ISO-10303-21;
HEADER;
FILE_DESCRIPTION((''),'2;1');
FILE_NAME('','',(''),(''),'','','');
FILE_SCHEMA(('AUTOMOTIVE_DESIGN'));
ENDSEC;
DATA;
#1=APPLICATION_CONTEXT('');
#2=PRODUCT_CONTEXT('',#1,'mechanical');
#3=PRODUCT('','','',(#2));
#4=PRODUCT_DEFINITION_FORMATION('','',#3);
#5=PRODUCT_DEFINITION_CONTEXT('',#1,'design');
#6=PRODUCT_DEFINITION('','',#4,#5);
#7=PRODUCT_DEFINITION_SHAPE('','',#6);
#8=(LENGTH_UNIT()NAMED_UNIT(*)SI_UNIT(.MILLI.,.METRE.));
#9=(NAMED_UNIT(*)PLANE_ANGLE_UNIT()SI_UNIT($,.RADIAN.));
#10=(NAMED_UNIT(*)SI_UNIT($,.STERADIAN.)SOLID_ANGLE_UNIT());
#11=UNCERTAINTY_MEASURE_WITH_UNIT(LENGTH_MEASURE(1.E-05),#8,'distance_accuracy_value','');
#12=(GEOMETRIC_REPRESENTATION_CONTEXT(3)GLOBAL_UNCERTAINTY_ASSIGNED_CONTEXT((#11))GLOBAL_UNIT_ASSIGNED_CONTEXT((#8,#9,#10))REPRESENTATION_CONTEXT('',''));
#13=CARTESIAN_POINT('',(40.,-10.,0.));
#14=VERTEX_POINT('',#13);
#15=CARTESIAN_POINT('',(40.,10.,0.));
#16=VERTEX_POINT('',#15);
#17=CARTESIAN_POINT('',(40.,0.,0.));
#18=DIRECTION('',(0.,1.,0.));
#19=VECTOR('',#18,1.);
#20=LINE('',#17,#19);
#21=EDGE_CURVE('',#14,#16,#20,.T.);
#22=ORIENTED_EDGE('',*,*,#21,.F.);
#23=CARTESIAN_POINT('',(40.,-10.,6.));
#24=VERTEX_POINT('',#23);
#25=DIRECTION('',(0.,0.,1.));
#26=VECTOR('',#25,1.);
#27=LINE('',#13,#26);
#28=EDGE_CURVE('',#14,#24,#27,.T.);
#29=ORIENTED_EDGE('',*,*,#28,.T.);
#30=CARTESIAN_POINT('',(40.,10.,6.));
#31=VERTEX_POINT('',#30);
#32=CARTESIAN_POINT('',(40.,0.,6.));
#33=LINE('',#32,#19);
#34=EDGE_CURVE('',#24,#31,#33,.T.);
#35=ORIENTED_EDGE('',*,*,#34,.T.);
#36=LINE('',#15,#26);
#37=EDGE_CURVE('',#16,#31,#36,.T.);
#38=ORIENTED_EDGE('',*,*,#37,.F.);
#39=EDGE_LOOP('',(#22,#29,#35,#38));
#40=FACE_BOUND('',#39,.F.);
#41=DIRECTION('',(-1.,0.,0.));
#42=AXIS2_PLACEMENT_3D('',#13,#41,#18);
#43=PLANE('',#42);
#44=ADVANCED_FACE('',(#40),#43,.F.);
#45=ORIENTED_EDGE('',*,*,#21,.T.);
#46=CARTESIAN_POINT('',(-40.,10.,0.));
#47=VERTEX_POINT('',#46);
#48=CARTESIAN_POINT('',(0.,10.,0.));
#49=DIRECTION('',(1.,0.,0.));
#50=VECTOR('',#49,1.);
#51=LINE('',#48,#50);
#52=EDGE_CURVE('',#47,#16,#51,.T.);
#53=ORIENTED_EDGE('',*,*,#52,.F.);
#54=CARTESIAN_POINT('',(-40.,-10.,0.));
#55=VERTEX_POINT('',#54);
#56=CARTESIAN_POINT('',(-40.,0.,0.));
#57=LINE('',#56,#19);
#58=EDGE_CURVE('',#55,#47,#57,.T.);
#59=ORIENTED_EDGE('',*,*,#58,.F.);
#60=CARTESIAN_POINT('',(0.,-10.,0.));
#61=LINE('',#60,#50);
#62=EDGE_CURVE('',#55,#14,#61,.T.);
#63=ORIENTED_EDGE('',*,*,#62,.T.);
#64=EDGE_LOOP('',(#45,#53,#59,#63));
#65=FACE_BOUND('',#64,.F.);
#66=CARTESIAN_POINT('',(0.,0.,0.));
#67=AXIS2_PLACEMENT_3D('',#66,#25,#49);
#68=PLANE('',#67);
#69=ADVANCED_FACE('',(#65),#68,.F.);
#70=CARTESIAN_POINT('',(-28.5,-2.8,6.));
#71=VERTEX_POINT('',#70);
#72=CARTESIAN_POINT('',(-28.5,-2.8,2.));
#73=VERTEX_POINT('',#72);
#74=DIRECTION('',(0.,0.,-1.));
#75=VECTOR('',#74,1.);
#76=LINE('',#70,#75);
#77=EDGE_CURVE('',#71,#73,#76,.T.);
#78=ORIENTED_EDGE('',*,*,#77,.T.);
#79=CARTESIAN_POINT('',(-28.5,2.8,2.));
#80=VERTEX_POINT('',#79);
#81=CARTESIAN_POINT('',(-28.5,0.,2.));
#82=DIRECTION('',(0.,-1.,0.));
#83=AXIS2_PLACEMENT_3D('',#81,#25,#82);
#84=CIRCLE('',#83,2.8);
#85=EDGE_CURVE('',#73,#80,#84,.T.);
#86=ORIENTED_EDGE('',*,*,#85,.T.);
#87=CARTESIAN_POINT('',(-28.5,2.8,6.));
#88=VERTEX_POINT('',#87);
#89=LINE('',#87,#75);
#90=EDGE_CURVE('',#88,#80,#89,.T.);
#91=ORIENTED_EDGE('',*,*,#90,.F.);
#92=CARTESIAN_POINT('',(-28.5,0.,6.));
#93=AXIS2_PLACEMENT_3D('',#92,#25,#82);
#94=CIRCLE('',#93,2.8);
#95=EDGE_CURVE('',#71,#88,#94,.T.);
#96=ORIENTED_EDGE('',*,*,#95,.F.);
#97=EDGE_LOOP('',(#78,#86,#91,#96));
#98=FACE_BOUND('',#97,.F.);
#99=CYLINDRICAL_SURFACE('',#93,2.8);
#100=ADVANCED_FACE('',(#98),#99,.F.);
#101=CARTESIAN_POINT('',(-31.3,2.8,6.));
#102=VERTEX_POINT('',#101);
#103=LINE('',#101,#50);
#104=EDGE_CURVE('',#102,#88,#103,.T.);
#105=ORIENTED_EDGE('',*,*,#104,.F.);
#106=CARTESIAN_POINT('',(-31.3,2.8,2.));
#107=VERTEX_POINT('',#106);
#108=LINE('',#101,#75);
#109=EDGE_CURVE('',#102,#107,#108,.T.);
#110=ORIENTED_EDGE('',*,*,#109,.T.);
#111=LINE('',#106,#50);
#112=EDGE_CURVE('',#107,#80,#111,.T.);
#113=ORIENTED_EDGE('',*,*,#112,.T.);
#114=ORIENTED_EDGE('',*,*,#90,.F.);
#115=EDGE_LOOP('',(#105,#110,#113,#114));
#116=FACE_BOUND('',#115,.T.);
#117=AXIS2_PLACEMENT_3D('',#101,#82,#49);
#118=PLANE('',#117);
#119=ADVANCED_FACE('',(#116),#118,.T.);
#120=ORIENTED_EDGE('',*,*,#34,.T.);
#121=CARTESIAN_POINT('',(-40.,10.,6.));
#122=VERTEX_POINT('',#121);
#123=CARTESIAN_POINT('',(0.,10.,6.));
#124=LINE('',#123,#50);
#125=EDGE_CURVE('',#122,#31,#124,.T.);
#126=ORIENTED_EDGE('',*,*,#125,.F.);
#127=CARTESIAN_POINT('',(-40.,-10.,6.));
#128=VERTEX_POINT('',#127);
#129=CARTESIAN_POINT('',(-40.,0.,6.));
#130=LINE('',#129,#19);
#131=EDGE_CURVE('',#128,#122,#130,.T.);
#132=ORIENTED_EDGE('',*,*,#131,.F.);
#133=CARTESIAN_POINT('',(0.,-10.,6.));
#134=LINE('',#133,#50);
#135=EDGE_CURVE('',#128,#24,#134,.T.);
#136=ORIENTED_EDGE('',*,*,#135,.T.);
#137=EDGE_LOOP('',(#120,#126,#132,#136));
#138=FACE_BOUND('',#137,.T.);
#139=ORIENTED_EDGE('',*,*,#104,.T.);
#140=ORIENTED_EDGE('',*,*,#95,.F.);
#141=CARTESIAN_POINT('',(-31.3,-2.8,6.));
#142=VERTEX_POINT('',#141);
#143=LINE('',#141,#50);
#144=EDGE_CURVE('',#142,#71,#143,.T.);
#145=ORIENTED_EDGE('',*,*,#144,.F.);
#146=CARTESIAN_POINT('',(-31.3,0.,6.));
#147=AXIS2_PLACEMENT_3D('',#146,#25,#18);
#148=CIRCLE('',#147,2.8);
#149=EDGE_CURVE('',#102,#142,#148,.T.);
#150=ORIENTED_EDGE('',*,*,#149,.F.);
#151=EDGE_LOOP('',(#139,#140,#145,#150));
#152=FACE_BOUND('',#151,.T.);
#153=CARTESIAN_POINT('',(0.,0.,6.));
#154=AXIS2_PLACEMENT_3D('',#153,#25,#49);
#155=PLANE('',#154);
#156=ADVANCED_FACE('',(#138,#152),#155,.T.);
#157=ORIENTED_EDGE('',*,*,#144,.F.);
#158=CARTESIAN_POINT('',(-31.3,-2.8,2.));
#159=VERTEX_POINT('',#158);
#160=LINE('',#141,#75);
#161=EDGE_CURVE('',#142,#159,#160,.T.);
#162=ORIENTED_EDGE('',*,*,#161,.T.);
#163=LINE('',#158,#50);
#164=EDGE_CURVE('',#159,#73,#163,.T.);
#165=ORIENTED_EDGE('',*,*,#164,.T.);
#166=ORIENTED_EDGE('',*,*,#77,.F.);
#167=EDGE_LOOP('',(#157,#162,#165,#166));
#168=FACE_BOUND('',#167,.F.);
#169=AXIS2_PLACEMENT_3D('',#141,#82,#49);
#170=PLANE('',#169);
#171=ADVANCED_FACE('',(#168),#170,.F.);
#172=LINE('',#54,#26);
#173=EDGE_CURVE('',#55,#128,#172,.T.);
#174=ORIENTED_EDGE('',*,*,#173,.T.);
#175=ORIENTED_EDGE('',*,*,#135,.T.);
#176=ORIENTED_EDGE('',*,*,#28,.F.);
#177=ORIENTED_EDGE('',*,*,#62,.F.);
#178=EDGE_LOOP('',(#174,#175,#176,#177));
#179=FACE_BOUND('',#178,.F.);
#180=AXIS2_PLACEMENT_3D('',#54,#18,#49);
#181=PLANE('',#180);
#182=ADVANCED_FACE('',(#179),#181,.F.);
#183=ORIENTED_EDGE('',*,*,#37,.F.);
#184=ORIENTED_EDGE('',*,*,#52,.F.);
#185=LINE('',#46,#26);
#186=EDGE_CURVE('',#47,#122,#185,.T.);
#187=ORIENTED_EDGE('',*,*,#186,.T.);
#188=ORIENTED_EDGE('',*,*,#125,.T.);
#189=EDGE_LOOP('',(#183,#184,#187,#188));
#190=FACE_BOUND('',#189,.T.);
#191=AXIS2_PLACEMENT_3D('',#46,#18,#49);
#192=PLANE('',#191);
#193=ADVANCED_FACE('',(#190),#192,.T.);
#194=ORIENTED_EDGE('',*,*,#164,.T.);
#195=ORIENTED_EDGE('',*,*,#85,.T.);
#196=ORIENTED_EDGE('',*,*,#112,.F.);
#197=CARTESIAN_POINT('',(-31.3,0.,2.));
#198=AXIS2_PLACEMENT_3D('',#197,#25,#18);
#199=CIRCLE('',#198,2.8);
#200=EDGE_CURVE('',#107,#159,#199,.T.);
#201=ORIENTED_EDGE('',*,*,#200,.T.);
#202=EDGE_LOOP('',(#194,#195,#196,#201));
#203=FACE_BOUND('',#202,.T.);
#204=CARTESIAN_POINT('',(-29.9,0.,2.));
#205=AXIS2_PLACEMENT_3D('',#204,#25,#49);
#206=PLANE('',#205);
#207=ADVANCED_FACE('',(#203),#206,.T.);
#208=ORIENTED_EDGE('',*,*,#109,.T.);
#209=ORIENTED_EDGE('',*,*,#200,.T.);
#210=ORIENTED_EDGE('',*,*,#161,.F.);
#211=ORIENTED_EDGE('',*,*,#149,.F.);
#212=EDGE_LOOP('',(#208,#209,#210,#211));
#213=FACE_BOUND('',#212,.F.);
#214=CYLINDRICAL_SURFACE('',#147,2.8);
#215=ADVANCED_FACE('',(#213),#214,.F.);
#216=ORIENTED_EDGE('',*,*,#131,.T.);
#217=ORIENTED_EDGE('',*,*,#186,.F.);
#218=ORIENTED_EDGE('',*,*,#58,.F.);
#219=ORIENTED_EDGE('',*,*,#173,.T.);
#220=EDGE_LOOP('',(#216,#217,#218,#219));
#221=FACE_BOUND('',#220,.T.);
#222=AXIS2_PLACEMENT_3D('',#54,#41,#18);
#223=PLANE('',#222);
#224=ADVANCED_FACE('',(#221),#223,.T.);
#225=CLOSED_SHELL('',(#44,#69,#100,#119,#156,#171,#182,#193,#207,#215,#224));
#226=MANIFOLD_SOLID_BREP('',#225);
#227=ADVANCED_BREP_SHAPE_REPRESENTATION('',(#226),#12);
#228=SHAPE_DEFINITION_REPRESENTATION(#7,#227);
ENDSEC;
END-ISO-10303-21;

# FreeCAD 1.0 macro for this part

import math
import FreeCAD as App
import Part
import Sketcher

doc = App.newDocument("Part")
params = doc.addObject("Spreadsheet::Sheet", "Params")
for row, (alias, value) in enumerate([
    ("sketch1_width", "80 mm"),
    ("sketch1_height", "20 mm"),
    ("pad1_length", "6 mm"),
    ("sketch2_radius", "2.8 mm"),
    ("sketch2_width", "2.8 mm"),
    ("pocket1_length", "4 mm"),
], start=1):
    params.set(f"A{row}", alias)
    params.set(f"B{row}", "=" + value)
    params.setAlias(f"B{row}", alias)

body = doc.addObject("PartDesign::Body", "Body")

sketch1 = body.newObject("Sketcher::SketchObject", "Sketch")
sketch1.AttachmentSupport = (doc.getObject("XY_Plane"), [""])
sketch1.MapMode = "FlatFace"
sketch1.addGeometry([
    Part.LineSegment(App.Vector(-40, 10, 0), App.Vector(-40, -10, 0)),
    Part.LineSegment(App.Vector(-40, -10, 0), App.Vector(40, -10, 0)),
    Part.LineSegment(App.Vector(40, -10, 0), App.Vector(40, 10, 0)),
    Part.LineSegment(App.Vector(40, 10, 0), App.Vector(-40, 10, 0)),
], False)
sketch1.addConstraint([
    Sketcher.Constraint("Coincident", 0, 2, 1, 1),
    Sketcher.Constraint("Coincident", 1, 2, 2, 1),
    Sketcher.Constraint("Coincident", 2, 2, 3, 1),
    Sketcher.Constraint("Coincident", 3, 2, 0, 1),
    Sketcher.Constraint("Vertical", 0),
    Sketcher.Constraint("Horizontal", 1),
    Sketcher.Constraint("Vertical", 2),
    Sketcher.Constraint("Horizontal", 3),
    Sketcher.Constraint("Symmetric", 0, 2, 2, 2, -1, 1),
    Sketcher.Constraint("DistanceX", 1, 1, 1, 2, 80.0),
    Sketcher.Constraint("DistanceY", 0, 2, 0, 1, 20.0),
])
sketch1.setExpression("Constraints[9]", "Params.sketch1_width")
sketch1.setExpression("Constraints[10]", "Params.sketch1_height")
pad1 = body.newObject("PartDesign::Pad", "Pad")
pad1.Profile = sketch1
pad1.setExpression("Length", "Params.pad1_length")

sketch2 = body.newObject("Sketcher::SketchObject", "Sketch001")
sketch2.AttachmentSupport = (doc.getObject("XY_Plane"), [""])
sketch2.MapMode = "FlatFace"
sketch2.AttachmentOffset = App.Placement(App.Vector(0, 0, 6), App.Rotation())
sketch2.addGeometry([
    Part.ArcOfCircle(Part.Circle(App.Vector(-31.3, 0, 0), App.Vector(0, 0, 1), 2.8), math.radians(90), math.radians(270)),
    Part.LineSegment(App.Vector(-31.3, -2.8, 0), App.Vector(-28.5, -2.8, 0)),
    Part.ArcOfCircle(Part.Circle(App.Vector(-28.5, 0, 0), App.Vector(0, 0, 1), 2.8), math.radians(-90), math.radians(90)),
    Part.LineSegment(App.Vector(-28.5, 2.8, 0), App.Vector(-31.3, 2.8, 0)),
], False)
sketch2.addConstraint([
    Sketcher.Constraint("Tangent", 0, 2, 1, 1),
    Sketcher.Constraint("Tangent", 1, 2, 2, 1),
    Sketcher.Constraint("Tangent", 2, 2, 3, 1),
    Sketcher.Constraint("Tangent", 3, 2, 0, 1),
    Sketcher.Constraint("Horizontal", 1),
    Sketcher.Constraint("Horizontal", 3),
    Sketcher.Constraint("PointOnObject", 0, 3, -1),
    Sketcher.Constraint("Radius", 0, 2.8),
    Sketcher.Constraint("DistanceX", 1, 1, 1, 2, 2.8),
    Sketcher.Constraint("DistanceX", 0, 3, -1, 1, 31.3),
])
sketch2.setExpression("Constraints[7]", "Params.sketch2_radius")
sketch2.setExpression("Constraints[8]", "Params.sketch2_width")
pocket1 = body.newObject("PartDesign::Pocket", "Pocket")
pocket1.Profile = sketch2
pocket1.setExpression("Length", "Params.pocket1_length")

doc.recompute()
